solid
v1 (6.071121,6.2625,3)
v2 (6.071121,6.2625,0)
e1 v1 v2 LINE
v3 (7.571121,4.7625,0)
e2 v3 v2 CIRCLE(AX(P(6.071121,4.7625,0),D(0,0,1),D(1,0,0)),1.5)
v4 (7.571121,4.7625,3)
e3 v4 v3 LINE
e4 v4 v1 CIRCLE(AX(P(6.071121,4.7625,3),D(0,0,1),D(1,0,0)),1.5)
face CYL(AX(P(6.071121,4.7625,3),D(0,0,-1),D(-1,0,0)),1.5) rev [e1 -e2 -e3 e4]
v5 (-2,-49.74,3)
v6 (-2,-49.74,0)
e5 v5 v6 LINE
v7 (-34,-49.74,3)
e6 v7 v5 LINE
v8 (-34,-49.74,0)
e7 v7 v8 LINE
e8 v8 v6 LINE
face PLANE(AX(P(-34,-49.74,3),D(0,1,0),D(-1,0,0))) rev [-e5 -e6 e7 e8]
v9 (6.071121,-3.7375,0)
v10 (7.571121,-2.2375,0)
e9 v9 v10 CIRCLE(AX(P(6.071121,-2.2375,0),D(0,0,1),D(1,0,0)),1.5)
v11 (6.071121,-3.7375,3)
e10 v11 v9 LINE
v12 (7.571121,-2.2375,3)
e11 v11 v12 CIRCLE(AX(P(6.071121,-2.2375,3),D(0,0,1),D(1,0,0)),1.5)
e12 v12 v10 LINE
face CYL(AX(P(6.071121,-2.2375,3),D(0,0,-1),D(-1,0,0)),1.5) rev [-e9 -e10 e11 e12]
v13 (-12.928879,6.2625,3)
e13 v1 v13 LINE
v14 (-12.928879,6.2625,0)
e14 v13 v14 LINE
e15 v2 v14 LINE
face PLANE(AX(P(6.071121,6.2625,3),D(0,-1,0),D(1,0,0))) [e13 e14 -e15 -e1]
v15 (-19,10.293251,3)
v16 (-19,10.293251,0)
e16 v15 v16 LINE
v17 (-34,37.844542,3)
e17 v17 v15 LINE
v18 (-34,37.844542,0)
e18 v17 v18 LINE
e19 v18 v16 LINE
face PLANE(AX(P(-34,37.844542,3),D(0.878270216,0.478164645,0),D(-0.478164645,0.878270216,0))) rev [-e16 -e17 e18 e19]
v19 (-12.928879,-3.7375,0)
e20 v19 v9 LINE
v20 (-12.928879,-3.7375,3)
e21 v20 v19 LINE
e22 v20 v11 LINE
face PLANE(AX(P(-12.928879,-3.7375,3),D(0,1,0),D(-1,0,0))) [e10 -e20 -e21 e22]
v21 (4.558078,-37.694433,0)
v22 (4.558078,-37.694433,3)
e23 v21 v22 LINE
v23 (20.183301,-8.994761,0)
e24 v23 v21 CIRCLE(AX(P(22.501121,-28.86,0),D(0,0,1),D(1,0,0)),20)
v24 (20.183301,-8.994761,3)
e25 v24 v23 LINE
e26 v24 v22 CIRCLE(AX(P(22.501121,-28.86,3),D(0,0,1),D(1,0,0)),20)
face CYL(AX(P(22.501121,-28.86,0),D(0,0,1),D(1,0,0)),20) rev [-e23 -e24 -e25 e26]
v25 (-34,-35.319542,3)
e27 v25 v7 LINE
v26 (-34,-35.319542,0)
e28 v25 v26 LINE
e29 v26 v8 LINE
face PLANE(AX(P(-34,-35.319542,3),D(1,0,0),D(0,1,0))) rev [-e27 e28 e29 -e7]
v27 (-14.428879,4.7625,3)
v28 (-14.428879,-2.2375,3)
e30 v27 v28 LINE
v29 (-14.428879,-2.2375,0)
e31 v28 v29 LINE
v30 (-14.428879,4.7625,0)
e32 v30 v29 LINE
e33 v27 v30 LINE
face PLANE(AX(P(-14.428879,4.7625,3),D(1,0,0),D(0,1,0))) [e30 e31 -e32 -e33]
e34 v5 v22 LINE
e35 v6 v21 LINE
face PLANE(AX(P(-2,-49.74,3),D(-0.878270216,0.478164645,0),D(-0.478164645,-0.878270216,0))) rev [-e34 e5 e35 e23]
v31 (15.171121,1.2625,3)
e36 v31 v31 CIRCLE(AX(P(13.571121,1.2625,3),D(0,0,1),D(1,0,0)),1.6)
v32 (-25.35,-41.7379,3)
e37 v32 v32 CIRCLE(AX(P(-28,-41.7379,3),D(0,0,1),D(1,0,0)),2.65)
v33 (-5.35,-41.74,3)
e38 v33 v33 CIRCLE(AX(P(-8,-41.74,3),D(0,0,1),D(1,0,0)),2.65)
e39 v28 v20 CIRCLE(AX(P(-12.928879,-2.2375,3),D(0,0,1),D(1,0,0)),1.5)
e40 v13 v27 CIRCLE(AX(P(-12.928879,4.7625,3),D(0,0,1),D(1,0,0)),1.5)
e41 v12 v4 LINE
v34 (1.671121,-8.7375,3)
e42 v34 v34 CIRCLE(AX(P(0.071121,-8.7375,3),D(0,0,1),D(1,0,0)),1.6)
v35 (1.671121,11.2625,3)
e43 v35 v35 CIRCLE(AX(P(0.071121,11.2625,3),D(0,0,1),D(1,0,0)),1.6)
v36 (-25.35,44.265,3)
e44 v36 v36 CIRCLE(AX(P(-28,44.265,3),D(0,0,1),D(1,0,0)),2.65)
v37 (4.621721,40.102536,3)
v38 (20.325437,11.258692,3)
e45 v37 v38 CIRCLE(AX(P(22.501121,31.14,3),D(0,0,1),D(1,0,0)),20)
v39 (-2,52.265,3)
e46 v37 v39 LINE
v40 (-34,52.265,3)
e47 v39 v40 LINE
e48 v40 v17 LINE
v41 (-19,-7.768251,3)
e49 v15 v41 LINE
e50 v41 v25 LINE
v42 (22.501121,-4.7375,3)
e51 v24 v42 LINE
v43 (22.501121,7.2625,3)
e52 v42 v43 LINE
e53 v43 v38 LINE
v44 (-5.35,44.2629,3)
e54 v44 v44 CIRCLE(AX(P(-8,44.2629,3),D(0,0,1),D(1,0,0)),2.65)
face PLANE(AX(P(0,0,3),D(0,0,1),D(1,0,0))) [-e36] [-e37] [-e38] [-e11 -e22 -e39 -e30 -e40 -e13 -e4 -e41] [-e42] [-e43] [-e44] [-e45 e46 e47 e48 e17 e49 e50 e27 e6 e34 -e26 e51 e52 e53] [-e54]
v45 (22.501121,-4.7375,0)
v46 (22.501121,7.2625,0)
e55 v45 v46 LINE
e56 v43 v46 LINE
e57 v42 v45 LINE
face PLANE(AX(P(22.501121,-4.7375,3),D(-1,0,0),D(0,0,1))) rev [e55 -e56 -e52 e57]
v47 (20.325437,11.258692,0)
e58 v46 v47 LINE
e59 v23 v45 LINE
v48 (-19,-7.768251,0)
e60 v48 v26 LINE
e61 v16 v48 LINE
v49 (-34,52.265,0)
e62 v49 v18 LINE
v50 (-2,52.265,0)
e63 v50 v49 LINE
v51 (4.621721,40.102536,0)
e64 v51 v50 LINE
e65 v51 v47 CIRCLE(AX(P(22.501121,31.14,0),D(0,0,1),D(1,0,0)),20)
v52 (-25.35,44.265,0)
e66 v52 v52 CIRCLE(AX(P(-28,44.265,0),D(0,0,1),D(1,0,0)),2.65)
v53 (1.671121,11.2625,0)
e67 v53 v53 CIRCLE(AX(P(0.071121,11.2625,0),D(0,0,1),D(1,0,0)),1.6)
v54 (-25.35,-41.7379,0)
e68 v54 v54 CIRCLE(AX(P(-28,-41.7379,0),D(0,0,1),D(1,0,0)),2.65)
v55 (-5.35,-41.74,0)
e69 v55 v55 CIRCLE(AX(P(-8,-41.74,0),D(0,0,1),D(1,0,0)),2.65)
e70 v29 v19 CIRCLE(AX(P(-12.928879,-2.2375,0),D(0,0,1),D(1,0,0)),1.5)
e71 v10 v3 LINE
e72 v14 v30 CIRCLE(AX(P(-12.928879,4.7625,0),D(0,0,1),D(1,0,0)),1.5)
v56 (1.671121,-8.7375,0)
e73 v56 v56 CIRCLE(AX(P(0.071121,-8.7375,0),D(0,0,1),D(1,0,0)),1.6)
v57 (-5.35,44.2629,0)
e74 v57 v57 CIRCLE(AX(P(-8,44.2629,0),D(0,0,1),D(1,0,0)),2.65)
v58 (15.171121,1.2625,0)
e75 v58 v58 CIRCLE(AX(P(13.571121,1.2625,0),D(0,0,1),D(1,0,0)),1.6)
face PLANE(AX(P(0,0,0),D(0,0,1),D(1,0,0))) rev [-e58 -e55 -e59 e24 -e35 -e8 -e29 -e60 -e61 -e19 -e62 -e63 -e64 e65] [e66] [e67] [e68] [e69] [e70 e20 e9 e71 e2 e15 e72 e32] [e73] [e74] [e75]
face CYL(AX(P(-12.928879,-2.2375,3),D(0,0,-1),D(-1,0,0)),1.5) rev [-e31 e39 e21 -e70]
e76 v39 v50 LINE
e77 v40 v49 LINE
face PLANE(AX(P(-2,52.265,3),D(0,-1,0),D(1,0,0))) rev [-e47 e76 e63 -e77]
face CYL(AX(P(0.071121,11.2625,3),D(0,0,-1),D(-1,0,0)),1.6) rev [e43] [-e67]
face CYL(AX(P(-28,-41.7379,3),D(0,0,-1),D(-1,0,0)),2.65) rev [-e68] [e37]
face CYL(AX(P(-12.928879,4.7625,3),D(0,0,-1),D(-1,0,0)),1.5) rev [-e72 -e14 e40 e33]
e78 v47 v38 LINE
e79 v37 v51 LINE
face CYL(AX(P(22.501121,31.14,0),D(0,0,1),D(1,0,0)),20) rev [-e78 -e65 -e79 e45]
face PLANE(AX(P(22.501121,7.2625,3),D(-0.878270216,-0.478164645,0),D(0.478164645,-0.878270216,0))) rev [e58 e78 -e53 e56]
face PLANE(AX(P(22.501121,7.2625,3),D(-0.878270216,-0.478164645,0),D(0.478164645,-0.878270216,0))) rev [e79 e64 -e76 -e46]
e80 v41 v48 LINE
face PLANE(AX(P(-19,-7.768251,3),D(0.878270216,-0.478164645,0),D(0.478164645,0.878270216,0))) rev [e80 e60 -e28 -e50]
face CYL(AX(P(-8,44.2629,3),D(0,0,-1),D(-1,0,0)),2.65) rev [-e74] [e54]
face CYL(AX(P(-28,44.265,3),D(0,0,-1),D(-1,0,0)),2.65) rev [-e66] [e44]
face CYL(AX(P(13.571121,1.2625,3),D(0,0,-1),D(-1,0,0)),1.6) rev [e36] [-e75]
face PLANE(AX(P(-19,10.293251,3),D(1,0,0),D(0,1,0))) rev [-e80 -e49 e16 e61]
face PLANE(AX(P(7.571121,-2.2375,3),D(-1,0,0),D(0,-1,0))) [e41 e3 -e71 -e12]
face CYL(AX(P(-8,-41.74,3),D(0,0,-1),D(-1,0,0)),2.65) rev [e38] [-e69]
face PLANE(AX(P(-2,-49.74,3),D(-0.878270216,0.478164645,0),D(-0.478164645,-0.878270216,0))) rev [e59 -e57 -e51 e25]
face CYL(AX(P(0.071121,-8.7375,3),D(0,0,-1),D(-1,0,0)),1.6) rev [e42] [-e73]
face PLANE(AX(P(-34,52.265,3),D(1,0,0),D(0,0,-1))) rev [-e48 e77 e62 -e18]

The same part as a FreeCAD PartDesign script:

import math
import FreeCAD as App
import Part
import Sketcher

V = App.Vector

doc = App.newDocument("Part")
body = doc.addObject("PartDesign::Body", "Body")

sketch1 = body.newObject("Sketcher::SketchObject", "Sketch")
sketch1.AttachmentSupport = (doc.getObject("XY_Plane"), [""])
sketch1.MapMode = "FlatFace"
sketch1.addGeometry([
    Part.LineSegment(V(-34, 52.3, 0), V(-34, 37.8, 0)),
    Part.LineSegment(V(-34, 37.8, 0), V(-19, 10.3, 0)),
    Part.LineSegment(V(-19, 10.3, 0), V(-19, -7.8, 0)),
    Part.LineSegment(V(-19, -7.8, 0), V(-34, -35.3, 0)),
    Part.LineSegment(V(-34, -35.3, 0), V(-34, -49.7, 0)),
    Part.LineSegment(V(-34, -49.7, 0), V(-2, -49.7, 0)),
    Part.LineSegment(V(-2, -49.7, 0), V(22.5, -4.7, 0)),
    Part.LineSegment(V(22.5, -4.7, 0), V(22.5, 7.3, 0)),
    Part.LineSegment(V(22.5, 7.3, 0), V(-2, 52.3, 0)),
    Part.LineSegment(V(-2, 52.3, 0), V(-34, 52.3, 0)),
    Part.Circle(V(-28, -41.7, 0), V(0, 0, 1), 2.6),
    Part.Circle(V(-8, -41.7, 0), V(0, 0, 1), 2.6),
    Part.LineSegment(V(7.6, 4.8, 0), V(7.6, -2.2, 0)),
    Part.ArcOfCircle(Part.Circle(V(6.1, -2.2, 0), V(0, 0, 1), 1.5), math.radians(-90), math.radians(0)),
    Part.LineSegment(V(6.1, -3.7, 0), V(-12.9, -3.7, 0)),
    Part.ArcOfCircle(Part.Circle(V(-12.9, -2.2, 0), V(0, 0, 1), 1.5), math.radians(180), math.radians(270)),
    Part.LineSegment(V(-14.4, -2.2, 0), V(-14.4, 4.8, 0)),
    Part.ArcOfCircle(Part.Circle(V(-12.9, 4.8, 0), V(0, 0, 1), 1.5), math.radians(90), math.radians(180)),
    Part.LineSegment(V(-12.9, 6.3, 0), V(6.1, 6.3, 0)),
    Part.ArcOfCircle(Part.Circle(V(6.1, 4.8, 0), V(0, 0, 1), 1.5), math.radians(0), math.radians(90)),
    Part.Circle(V(0.1, -8.7, 0), V(0, 0, 1), 1.6),
    Part.Circle(V(13.6, 1.3, 0), V(0, 0, 1), 1.6),
    Part.Circle(V(-28, 44.3, 0), V(0, 0, 1), 2.6),
    Part.Circle(V(-8, 44.3, 0), V(0, 0, 1), 2.6),
    Part.Circle(V(0.1, 11.3, 0), V(0, 0, 1), 1.6),
], False)
sketch1.addConstraint([
    Sketcher.Constraint("Coincident", 0, 2, 1, 1),
    Sketcher.Constraint("Coincident", 1, 2, 2, 1),
    Sketcher.Constraint("Coincident", 2, 2, 3, 1),
    Sketcher.Constraint("Coincident", 3, 2, 4, 1),
    Sketcher.Constraint("Coincident", 4, 2, 5, 1),
    Sketcher.Constraint("Coincident", 5, 2, 6, 1),
    Sketcher.Constraint("Coincident", 6, 2, 7, 1),
    Sketcher.Constraint("Coincident", 7, 2, 8, 1),
    Sketcher.Constraint("Coincident", 8, 2, 9, 1),
    Sketcher.Constraint("Coincident", 9, 2, 0, 1),
    Sketcher.Constraint("Tangent", 12, 2, 13, 2),
    Sketcher.Constraint("Tangent", 13, 1, 14, 1),
    Sketcher.Constraint("Tangent", 14, 2, 15, 2),
    Sketcher.Constraint("Tangent", 15, 1, 16, 1),
    Sketcher.Constraint("Tangent", 16, 2, 17, 2),
    Sketcher.Constraint("Tangent", 17, 1, 18, 1),
    Sketcher.Constraint("Tangent", 18, 2, 19, 2),
    Sketcher.Constraint("Tangent", 19, 1, 12, 1),
    Sketcher.Constraint("Vertical", 0),
    Sketcher.Constraint("Vertical", 2),
    Sketcher.Constraint("Vertical", 4),
    Sketcher.Constraint("Horizontal", 5),
    Sketcher.Constraint("Vertical", 7),
    Sketcher.Constraint("Horizontal", 9),
    Sketcher.Constraint("Vertical", 12),
    Sketcher.Constraint("Horizontal", 14),
    Sketcher.Constraint("Vertical", 16),
    Sketcher.Constraint("Horizontal", 18),
    Sketcher.Constraint("Equal", 10, 11),
    Sketcher.Constraint("Equal", 13, 15),
    Sketcher.Constraint("Equal", 15, 17),
    Sketcher.Constraint("Equal", 17, 19),
    Sketcher.Constraint("Equal", 20, 21),
    Sketcher.Constraint("Equal", 11, 22),
    Sketcher.Constraint("Equal", 22, 23),
    Sketcher.Constraint("Equal", 21, 24),
    Sketcher.Constraint("Parallel", 3, 6),
    Sketcher.Constraint("Parallel", 1, 8),
    Sketcher.Constraint("Vertical", 10, 3, 22, 3),
    Sketcher.Constraint("Vertical", 11, 3, 23, 3),
    Sketcher.Constraint("Vertical", 20, 3, 24, 3),
    Sketcher.Constraint("Vertical", 0, 2, 3, 2),
    Sketcher.Constraint("Vertical", 5, 2, 8, 2),
    Sketcher.Constraint("Equal", 0, 4),
    Sketcher.Constraint("Equal", 1, 3),
    Sketcher.Constraint("Diameter", 10, 5.3),
    Sketcher.Constraint("Diameter", 20, 3.2),
    Sketcher.Constraint("Radius", 13, 1.5),
    Sketcher.Constraint("DistanceX", 5, 1, 5, 2, 32.0),
    Sketcher.Constraint("DistanceX", 14, 2, 14, 1, 19.0),
    Sketcher.Constraint("DistanceY", 7, 1, 7, 2, 12.0),
    Sketcher.Constraint("DistanceY", 12, 2, 12, 1, 7.0),
    Sketcher.Constraint("DistanceX", 10, 3, -1, 1, 28.0),
    Sketcher.Constraint("DistanceX", 11, 3, -1, 1, 8.0),
    Sketcher.Constraint("DistanceX", 0, 2, -1, 1, 34.0),
    Sketcher.Constraint("DistanceX", 1, 2, -1, 1, 19.0),
    Sketcher.Constraint("DistanceX", 20, 3, 13, 3, 6.0),
    Sketcher.Constraint("DistanceY", 20, 3, 21, 3, 10.0),
    Sketcher.Constraint("DistanceY", 21, 3, 24, 3, 10.0),
    Sketcher.Constraint("DistanceY", 4, 2, 11, 3, 8.0),
    Sketcher.Constraint("DistanceY", 6, 2, 21, 3, 6.0),
    Sketcher.Constraint("DistanceY", 22, 3, 8, 2, 8.0),
    Sketcher.Constraint("DistanceX", 12, 2, 21, 3, 6.0),
    Sketcher.Constraint("DistanceY", 20, 3, 13, 1, 5.0),
    Sketcher.Constraint("DistanceY", 11, 3, -1, 1, 41.74),
    Sketcher.Constraint("DistanceX", 21, 3, 6, 2, 8.93),
    Sketcher.Constraint("DistanceY", -1, 1, 22, 3, 44.265),
    Sketcher.Constraint("DistanceY", 0, 2, 0, 1, 14.420458),
    Sketcher.Constraint("DistanceY", 10, 3, -1, 1, 41.7379),
    Sketcher.Constraint("DistanceY", -1, 1, 23, 3, 44.2629),
    Sketcher.Constraint("DistanceY", 2, 2, 2, 1, 18.061502),
])
pad1 = body.newObject("PartDesign::Pad", "Pad")
pad1.Profile = sketch1
pad1.Length = 3

sketch2 = body.newObject("Sketcher::SketchObject", "Sketch001")
sketch2.AttachmentSupport = (doc.getObject("XY_Plane"), [""])
sketch2.MapMode = "FlatFace"
sketch2.AttachmentOffset = App.Placement(V(0, 0, 3), App.Rotation())
sketch2.addGeometry([
    Part.Circle(V(23, 31, 0), V(0, 0, 1), 20),
    Part.Circle(V(23, -29, 0), V(0, 0, 1), 20),
], False)
sketch2.addConstraint([
    Sketcher.Constraint("Equal", 0, 1),
    Sketcher.Constraint("Vertical", 0, 3, 1, 3),
    Sketcher.Constraint("Diameter", 0, 40.0),
    Sketcher.Constraint("DistanceY", 1, 3, 0, 3, 60.0),
    Sketcher.Constraint("DistanceY", -1, 1, 0, 3, 31.14),
    Sketcher.Constraint("DistanceX", -1, 1, 0, 3, 22.501121),
])
pocket1 = body.newObject("PartDesign::Pocket", "Pocket")
pocket1.Profile = sketch2
pocket1.Length = 3

doc.recompute()
